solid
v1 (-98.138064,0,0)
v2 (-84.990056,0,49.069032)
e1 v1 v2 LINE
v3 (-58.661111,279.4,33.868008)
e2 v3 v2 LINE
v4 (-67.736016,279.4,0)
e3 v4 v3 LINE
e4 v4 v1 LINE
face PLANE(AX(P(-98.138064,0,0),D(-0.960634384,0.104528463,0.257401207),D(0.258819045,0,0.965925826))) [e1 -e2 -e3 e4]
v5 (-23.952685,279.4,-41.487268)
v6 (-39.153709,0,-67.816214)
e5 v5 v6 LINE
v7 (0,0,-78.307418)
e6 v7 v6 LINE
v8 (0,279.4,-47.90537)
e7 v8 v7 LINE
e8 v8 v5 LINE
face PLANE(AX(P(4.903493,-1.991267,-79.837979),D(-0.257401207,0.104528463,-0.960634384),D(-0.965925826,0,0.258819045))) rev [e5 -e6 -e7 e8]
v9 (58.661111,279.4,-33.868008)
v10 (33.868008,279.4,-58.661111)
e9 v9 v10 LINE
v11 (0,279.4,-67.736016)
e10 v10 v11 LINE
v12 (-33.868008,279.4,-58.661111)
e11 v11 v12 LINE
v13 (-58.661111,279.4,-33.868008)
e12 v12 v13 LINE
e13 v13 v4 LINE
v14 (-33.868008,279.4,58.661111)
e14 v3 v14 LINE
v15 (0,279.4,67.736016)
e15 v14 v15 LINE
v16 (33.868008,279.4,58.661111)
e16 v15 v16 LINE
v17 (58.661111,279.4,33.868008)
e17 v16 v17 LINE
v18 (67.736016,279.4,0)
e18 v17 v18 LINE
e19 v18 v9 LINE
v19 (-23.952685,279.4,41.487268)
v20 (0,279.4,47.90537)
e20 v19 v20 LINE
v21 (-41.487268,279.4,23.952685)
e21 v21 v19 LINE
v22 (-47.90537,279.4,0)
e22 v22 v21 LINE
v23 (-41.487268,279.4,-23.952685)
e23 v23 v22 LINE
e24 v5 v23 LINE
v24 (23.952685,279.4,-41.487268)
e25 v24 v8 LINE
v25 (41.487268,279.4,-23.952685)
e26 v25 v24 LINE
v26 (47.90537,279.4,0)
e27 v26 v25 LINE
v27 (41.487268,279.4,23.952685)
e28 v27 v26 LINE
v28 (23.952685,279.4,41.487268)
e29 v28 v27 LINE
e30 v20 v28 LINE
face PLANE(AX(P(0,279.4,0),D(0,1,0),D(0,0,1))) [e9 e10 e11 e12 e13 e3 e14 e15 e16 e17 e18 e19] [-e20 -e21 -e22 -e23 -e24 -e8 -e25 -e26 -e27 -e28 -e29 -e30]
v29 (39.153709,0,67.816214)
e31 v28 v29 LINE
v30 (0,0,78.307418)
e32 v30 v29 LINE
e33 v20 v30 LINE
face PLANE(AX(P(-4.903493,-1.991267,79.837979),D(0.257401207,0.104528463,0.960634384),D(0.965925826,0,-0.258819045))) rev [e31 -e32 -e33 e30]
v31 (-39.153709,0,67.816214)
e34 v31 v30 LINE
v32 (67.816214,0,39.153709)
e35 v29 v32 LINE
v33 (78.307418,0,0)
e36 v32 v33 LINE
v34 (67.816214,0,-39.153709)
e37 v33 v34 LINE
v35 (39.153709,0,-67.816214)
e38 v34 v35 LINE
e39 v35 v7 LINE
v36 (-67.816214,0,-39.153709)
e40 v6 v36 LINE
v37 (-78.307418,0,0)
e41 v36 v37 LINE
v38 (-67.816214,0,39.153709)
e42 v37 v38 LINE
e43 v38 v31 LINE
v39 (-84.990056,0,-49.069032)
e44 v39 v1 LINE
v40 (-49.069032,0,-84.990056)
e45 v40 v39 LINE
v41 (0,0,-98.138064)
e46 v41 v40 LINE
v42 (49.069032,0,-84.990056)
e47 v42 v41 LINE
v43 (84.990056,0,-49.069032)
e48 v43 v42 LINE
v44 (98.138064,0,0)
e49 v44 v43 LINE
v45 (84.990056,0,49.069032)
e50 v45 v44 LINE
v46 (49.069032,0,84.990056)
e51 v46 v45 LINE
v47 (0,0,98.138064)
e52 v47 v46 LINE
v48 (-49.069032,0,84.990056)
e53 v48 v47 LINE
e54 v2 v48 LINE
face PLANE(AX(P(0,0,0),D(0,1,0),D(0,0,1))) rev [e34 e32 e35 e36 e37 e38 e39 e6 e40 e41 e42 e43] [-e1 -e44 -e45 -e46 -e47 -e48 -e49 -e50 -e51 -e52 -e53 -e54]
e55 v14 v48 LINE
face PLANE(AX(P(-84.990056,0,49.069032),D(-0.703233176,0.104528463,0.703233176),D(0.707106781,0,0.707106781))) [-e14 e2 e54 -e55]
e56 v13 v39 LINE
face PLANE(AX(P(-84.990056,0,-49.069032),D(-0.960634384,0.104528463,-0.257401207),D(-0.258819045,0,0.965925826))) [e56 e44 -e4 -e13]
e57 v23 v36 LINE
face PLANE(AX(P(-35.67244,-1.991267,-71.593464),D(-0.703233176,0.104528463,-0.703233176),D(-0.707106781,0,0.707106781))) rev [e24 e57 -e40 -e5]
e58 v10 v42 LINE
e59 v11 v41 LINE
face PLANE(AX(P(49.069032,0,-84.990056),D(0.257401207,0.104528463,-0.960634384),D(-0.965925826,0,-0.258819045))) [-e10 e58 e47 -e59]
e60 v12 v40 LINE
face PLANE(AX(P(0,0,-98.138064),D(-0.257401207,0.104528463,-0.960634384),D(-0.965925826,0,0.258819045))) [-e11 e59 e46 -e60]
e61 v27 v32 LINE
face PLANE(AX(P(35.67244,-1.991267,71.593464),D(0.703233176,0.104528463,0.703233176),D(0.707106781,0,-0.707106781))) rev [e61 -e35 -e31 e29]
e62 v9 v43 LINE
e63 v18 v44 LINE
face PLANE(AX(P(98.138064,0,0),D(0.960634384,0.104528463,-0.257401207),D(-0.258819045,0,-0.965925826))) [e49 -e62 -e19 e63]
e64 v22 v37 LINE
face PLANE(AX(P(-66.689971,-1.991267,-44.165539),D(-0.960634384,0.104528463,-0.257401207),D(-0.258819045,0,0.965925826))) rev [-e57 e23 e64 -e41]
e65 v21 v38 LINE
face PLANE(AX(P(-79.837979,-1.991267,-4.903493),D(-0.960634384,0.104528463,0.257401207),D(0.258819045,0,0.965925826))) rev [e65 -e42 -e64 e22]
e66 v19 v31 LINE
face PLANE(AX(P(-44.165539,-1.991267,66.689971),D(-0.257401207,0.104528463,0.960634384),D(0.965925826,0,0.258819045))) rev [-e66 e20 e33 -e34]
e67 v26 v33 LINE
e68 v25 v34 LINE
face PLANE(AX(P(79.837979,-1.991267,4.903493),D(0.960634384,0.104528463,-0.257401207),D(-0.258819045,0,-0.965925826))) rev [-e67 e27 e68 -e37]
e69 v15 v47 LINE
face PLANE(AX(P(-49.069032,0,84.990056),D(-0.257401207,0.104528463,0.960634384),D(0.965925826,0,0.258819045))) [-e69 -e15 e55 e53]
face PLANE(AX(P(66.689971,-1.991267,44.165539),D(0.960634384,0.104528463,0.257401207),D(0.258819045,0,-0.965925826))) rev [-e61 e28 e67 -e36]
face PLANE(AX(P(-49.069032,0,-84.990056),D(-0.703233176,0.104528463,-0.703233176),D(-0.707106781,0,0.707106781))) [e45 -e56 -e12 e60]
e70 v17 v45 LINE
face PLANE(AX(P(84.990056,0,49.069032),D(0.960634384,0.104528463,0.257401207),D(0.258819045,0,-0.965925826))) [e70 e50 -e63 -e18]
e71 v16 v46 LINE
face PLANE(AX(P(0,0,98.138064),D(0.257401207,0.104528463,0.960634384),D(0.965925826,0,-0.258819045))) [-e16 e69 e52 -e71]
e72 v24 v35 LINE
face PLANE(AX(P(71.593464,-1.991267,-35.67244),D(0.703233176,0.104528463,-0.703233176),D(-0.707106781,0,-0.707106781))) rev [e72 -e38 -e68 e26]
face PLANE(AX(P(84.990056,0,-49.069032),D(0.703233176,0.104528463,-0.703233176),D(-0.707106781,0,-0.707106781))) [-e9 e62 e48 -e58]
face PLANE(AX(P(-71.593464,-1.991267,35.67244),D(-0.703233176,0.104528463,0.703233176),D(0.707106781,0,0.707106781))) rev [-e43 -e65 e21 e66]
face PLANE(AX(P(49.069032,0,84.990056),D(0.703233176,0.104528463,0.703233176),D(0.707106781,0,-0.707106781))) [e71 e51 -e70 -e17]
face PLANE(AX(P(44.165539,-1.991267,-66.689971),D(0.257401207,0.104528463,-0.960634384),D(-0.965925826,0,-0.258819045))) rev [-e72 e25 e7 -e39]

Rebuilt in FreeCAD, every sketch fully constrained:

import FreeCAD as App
import Part
import Sketcher

V = App.Vector
Q = App.Units.Quantity


def faces_at(feature, points):
    """Names of the faces that lie closest to the given points."""
    faces = feature.Shape.Faces
    near = lambda p: min(range(len(faces)), key=lambda i: faces[i].distToShape(Part.Vertex(*p))[0])
    return sorted({f"Face{near(p) + 1}" for p in points})

doc = App.newDocument("Part")
body = doc.addObject("PartDesign::Body", "Body")

sketch1 = body.newObject("Sketcher::SketchObject", "Sketch")
sketch1.AttachmentSupport = (doc.getObject("XZ_Plane"), [""])
sketch1.MapMode = "FlatFace"
sketch1.addGeometry([
    Part.LineSegment(V(98, 0, 0), V(85, -49, 0)),
    Part.LineSegment(V(85, -49, 0), V(49, -85, 0)),
    Part.LineSegment(V(49, -85, 0), V(0, -98, 0)),
    Part.LineSegment(V(0, -98, 0), V(-49, -85, 0)),
    Part.LineSegment(V(-49, -85, 0), V(-85, -49, 0)),
    Part.LineSegment(V(-85, -49, 0), V(-98, 0, 0)),
    Part.LineSegment(V(-98, 0, 0), V(-85, 49, 0)),
    Part.LineSegment(V(-85, 49, 0), V(-49, 85, 0)),
    Part.LineSegment(V(-49, 85, 0), V(0, 98, 0)),
    Part.LineSegment(V(0, 98, 0), V(49, 85, 0)),
    Part.LineSegment(V(49, 85, 0), V(85, 49, 0)),
    Part.LineSegment(V(85, 49, 0), V(98, 0, 0)),
], False)
sketch1.addConstraint([
    Sketcher.Constraint("Coincident", 0, 2, 1, 1),
    Sketcher.Constraint("Coincident", 1, 2, 2, 1),
    Sketcher.Constraint("Coincident", 2, 2, 3, 1),
    Sketcher.Constraint("Coincident", 3, 2, 4, 1),
    Sketcher.Constraint("Coincident", 4, 2, 5, 1),
    Sketcher.Constraint("Coincident", 5, 2, 6, 1),
    Sketcher.Constraint("Coincident", 6, 2, 7, 1),
    Sketcher.Constraint("Coincident", 7, 2, 8, 1),
    Sketcher.Constraint("Coincident", 8, 2, 9, 1),
    Sketcher.Constraint("Coincident", 9, 2, 10, 1),
    Sketcher.Constraint("Coincident", 10, 2, 11, 1),
    Sketcher.Constraint("Coincident", 11, 2, 0, 1),
    Sketcher.Constraint("Symmetric", 0, 2, 6, 2, -1, 1),
    Sketcher.Constraint("Symmetric", 1, 2, 7, 2, -1, 1),
    Sketcher.Constraint("Symmetric", 2, 2, 8, 2, -1, 1),
    Sketcher.Constraint("Symmetric", 3, 2, 9, 2, -1, 1),
    Sketcher.Constraint("Symmetric", 4, 2, 10, 2, -1, 1),
    Sketcher.Constraint("Symmetric", 5, 2, 11, 2, -1, 1),
    Sketcher.Constraint("Symmetric", 1, 2, 3, 2, -2),
    Sketcher.Constraint("Symmetric", 0, 2, 4, 2, -2),
    Sketcher.Constraint("PointOnObject", 2, 2, -2),
    Sketcher.Constraint("PointOnObject", 5, 2, -1),
    Sketcher.Constraint("Perpendicular", 0, 3),
    Sketcher.Constraint("Perpendicular", 1, 4),
    Sketcher.Constraint("Equal", 0, 1),
    Sketcher.Constraint("Equal", 1, 2),
    Sketcher.Constraint("Distance", 0, Q("2 in")),
    Sketcher.Constraint("Angle", 0, Q("-105 deg")),
])
pad1 = body.newObject("PartDesign::Pad", "Pad")
pad1.Profile = sketch1
pad1.Length = Q("11 in")
pad1.Reversed = True
pad1.TaperAngle = -6
doc.recompute()

thickness = body.newObject("PartDesign::Thickness", "Thickness")
thickness.Base = (pad1, faces_at(pad1, [(0, 279.4, 0), (0, 0, 0)]))
thickness.Value = Q("0.75 in")
thickness.Reversed = True
thickness.Join = "Intersection"

doc.recompute()
